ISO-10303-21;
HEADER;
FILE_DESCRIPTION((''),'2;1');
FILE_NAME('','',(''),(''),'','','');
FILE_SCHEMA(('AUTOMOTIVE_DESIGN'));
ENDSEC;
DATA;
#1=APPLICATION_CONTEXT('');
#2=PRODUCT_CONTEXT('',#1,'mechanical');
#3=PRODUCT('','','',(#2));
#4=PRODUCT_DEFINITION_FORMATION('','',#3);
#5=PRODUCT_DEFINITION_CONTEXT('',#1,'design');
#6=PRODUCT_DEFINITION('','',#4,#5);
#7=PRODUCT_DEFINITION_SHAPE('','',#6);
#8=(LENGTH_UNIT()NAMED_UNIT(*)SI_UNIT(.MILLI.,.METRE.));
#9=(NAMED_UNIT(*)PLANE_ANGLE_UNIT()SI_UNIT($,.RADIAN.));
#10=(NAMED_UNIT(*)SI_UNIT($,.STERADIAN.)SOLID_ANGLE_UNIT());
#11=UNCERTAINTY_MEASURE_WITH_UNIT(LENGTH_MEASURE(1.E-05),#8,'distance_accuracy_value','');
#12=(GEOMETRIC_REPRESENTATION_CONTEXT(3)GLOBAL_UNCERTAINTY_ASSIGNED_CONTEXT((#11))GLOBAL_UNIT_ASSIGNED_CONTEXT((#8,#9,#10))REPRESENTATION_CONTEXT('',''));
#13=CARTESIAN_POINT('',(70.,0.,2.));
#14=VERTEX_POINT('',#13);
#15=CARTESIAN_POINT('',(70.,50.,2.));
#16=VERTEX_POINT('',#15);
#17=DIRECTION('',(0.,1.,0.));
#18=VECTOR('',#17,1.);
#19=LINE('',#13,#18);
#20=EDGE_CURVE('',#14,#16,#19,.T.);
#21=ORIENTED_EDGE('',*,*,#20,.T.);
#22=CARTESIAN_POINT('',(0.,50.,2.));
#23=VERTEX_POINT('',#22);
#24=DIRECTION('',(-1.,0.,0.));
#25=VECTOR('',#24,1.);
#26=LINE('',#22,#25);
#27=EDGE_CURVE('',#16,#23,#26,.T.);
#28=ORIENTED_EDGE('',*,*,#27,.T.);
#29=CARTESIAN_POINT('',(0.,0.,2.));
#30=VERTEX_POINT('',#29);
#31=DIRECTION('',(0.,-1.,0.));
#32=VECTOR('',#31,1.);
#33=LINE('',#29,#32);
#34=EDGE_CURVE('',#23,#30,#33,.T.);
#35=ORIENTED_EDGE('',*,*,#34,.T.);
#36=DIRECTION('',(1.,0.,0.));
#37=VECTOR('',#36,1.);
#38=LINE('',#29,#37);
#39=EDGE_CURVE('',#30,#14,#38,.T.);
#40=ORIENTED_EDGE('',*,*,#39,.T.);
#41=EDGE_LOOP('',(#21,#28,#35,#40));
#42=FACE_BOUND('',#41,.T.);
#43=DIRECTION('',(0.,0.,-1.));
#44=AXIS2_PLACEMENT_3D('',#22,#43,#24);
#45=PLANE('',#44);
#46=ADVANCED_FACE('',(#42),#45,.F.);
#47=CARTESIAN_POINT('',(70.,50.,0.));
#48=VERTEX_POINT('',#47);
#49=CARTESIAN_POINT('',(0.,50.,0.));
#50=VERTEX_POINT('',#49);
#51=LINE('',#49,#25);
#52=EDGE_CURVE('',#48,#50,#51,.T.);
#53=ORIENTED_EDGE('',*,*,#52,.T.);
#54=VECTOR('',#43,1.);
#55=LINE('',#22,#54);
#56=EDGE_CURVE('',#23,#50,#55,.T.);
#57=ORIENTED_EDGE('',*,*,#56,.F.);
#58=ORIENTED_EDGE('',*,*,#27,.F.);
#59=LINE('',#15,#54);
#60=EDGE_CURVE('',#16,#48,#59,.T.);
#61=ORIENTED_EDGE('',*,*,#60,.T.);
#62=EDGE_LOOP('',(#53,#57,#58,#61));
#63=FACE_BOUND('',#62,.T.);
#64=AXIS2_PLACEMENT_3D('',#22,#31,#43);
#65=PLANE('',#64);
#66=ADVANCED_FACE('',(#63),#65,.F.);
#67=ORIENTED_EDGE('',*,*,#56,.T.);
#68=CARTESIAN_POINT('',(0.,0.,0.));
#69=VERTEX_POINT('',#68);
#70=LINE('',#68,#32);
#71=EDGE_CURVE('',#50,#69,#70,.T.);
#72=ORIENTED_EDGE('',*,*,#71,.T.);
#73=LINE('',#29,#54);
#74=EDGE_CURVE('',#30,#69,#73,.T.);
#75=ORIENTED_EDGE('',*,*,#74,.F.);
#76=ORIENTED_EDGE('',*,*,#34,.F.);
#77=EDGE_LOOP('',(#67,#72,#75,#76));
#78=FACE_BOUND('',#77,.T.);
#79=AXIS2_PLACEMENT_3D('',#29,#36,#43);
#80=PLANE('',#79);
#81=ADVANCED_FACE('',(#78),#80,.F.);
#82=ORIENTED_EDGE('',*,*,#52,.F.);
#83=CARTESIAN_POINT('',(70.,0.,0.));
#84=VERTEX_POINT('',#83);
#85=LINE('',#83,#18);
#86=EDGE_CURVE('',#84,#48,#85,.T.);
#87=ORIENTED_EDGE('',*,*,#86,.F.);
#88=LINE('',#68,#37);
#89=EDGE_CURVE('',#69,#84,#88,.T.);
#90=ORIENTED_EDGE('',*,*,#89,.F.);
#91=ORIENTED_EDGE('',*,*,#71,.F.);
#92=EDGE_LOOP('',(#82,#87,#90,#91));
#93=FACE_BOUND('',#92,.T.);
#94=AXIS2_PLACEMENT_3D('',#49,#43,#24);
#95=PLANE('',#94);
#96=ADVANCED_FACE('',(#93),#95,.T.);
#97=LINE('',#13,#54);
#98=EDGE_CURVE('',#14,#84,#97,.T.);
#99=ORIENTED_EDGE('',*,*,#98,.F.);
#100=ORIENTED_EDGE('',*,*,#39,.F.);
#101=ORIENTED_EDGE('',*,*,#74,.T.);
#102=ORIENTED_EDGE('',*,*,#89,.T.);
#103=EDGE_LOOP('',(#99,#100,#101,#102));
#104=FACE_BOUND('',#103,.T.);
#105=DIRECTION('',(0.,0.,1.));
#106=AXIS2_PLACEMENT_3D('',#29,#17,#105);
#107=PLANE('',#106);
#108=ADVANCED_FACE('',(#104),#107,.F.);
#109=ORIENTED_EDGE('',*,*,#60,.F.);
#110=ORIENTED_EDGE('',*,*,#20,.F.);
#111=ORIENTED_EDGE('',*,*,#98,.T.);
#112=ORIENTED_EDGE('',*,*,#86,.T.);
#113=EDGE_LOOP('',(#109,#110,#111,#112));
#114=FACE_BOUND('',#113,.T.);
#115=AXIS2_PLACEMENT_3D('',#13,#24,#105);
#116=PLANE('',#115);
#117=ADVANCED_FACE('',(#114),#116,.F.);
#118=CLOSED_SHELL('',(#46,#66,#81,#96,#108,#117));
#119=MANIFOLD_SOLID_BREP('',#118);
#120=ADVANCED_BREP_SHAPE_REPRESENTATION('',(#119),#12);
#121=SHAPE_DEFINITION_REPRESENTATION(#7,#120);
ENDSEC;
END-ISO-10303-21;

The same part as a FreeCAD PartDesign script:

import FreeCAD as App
import Part
import Sketcher

doc = App.newDocument("Part")
body = doc.addObject("PartDesign::Body", "Body")

sketch1 = body.newObject("Sketcher::SketchObject", "Sketch")
sketch1.AttachmentSupport = (doc.getObject("XY_Plane"), [""])
sketch1.MapMode = "FlatFace"
sketch1.addGeometry([
    Part.LineSegment(App.Vector(0, 50, 0), App.Vector(0, 0, 0)),
    Part.LineSegment(App.Vector(0, 0, 0), App.Vector(70, 0, 0)),
    Part.LineSegment(App.Vector(70, 0, 0), App.Vector(70, 50, 0)),
    Part.LineSegment(App.Vector(70, 50, 0), App.Vector(0, 50, 0)),
], False)
sketch1.addConstraint([
    Sketcher.Constraint("Coincident", 0, 2, 1, 1),
    Sketcher.Constraint("Coincident", 1, 2, 2, 1),
    Sketcher.Constraint("Coincident", 2, 2, 3, 1),
    Sketcher.Constraint("Coincident", 3, 2, 0, 1),
    Sketcher.Constraint("Vertical", 0),
    Sketcher.Constraint("Horizontal", 1),
    Sketcher.Constraint("Vertical", 2),
    Sketcher.Constraint("Horizontal", 3),
    Sketcher.Constraint("Coincident", 0, 2, -1, 1),
    Sketcher.Constraint("DistanceX", 1, 1, 1, 2, 70.0),
    Sketcher.Constraint("DistanceY", 0, 2, 0, 1, 50.0),
])
pad1 = body.newObject("PartDesign::Pad", "Pad")
pad1.Profile = sketch1
pad1.Length = 2

doc.recompute()
